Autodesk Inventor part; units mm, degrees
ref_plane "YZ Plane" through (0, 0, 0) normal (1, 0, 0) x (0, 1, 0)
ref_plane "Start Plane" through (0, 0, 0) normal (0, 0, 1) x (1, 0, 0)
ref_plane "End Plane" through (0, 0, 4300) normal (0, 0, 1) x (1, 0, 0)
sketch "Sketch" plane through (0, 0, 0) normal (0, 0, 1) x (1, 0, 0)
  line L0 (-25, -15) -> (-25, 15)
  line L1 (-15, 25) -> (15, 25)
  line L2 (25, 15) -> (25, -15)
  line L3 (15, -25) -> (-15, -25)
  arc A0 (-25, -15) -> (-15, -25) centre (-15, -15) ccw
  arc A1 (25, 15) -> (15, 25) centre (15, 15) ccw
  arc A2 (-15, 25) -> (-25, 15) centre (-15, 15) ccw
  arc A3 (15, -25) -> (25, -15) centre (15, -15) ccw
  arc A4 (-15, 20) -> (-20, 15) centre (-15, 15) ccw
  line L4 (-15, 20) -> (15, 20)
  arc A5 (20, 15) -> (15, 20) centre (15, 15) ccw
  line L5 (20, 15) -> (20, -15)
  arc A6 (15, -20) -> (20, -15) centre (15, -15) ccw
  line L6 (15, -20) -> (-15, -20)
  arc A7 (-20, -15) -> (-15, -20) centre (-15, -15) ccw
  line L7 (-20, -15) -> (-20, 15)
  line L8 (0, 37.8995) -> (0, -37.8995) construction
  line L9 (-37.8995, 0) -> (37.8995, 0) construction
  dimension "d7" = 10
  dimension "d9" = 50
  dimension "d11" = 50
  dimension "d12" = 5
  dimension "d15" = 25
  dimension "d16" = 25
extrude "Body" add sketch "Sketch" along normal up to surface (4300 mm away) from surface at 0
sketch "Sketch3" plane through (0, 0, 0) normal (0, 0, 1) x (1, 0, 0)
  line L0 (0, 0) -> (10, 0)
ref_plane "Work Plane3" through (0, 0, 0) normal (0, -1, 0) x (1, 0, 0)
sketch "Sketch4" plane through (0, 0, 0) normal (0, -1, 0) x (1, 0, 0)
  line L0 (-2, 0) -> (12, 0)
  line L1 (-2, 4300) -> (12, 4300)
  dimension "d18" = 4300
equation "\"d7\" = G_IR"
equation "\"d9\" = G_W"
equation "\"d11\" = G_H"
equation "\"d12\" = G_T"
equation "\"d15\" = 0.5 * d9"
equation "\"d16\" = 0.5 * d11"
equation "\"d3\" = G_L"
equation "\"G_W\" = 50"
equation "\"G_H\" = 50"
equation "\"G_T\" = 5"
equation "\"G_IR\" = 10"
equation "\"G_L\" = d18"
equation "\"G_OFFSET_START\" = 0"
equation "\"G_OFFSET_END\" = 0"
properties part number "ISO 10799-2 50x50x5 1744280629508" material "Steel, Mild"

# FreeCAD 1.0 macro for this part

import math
import FreeCAD as App
import Part
import Sketcher
Q = App.Units.Quantity

doc = App.newDocument("Part")
params = doc.addObject("Spreadsheet::Sheet", "Params")
for row, (alias, value) in enumerate([
    ("sketch1_radius", "10 mm"),
    ("sketch1_radius2", "5 mm"),
    ("pad1_length", "4300 mm"),
], start=1):
    params.set(f"A{row}", alias)
    params.set(f"B{row}", "=" + value)
    params.setAlias(f"B{row}", alias)

body = doc.addObject("PartDesign::Body", "Body")

# Sketch on XY plane
sketch1 = body.newObject("Sketcher::SketchObject", "Sketch")
sketch1.AttachmentSupport = (doc.getObject("XY_Plane"), [""])
sketch1.MapMode = "FlatFace"
sketch1.addGeometry([
    Part.LineSegment(App.Vector(-25, 15, 0), App.Vector(-25, -15, 0)),  # 0
    Part.ArcOfCircle(Part.Circle(App.Vector(-15, -15, 0), App.Vector(0, 0, 1), 10), math.radians(180), math.radians(270)),  # 1
    Part.LineSegment(App.Vector(-15, -25, 0), App.Vector(15, -25, 0)),  # 2
    Part.ArcOfCircle(Part.Circle(App.Vector(15, -15, 0), App.Vector(0, 0, 1), 10), math.radians(-90), math.radians(0)),  # 3
    Part.LineSegment(App.Vector(25, -15, 0), App.Vector(25, 15, 0)),  # 4
    Part.ArcOfCircle(Part.Circle(App.Vector(15, 15, 0), App.Vector(0, 0, 1), 10), math.radians(0), math.radians(90)),  # 5
    Part.LineSegment(App.Vector(15, 25, 0), App.Vector(-15, 25, 0)),  # 6
    Part.ArcOfCircle(Part.Circle(App.Vector(-15, 15, 0), App.Vector(0, 0, 1), 10), math.radians(90), math.radians(180)),  # 7
    Part.ArcOfCircle(Part.Circle(App.Vector(-15, 15, 0), App.Vector(0, 0, 1), 5), math.radians(90), math.radians(180)),  # 8
    Part.LineSegment(App.Vector(-15, 20, 0), App.Vector(15, 20, 0)),  # 9
    Part.ArcOfCircle(Part.Circle(App.Vector(15, 15, 0), App.Vector(0, 0, 1), 5), math.radians(0), math.radians(90)),  # 10
    Part.LineSegment(App.Vector(20, 15, 0), App.Vector(20, -15, 0)),  # 11
    Part.ArcOfCircle(Part.Circle(App.Vector(15, -15, 0), App.Vector(0, 0, 1), 5), math.radians(-90), math.radians(0)),  # 12
    Part.LineSegment(App.Vector(15, -20, 0), App.Vector(-15, -20, 0)),  # 13
    Part.ArcOfCircle(Part.Circle(App.Vector(-15, -15, 0), App.Vector(0, 0, 1), 5), math.radians(180), math.radians(270)),  # 14
    Part.LineSegment(App.Vector(-20, -15, 0), App.Vector(-20, 15, 0)),  # 15
], False)
sketch1.addConstraint([
    Sketcher.Constraint("Tangent", 0, 2, 1, 1),
    Sketcher.Constraint("Tangent", 1, 2, 2, 1),
    Sketcher.Constraint("Tangent", 2, 2, 3, 1),
    Sketcher.Constraint("Tangent", 3, 2, 4, 1),
    Sketcher.Constraint("Tangent", 4, 2, 5, 1),
    Sketcher.Constraint("Tangent", 5, 2, 6, 1),
    Sketcher.Constraint("Tangent", 6, 2, 7, 1),
    Sketcher.Constraint("Tangent", 7, 2, 0, 1),
    Sketcher.Constraint("Tangent", 8, 1, 9, 1),
    Sketcher.Constraint("Tangent", 9, 2, 10, 2),
    Sketcher.Constraint("Tangent", 10, 1, 11, 1),
    Sketcher.Constraint("Tangent", 11, 2, 12, 2),
    Sketcher.Constraint("Tangent", 12, 1, 13, 1),
    Sketcher.Constraint("Tangent", 13, 2, 14, 2),
    Sketcher.Constraint("Tangent", 14, 1, 15, 1),
    Sketcher.Constraint("Tangent", 15, 2, 8, 2),
    Sketcher.Constraint("Vertical", 0),
    Sketcher.Constraint("Horizontal", 2),
    Sketcher.Constraint("Vertical", 4),
    Sketcher.Constraint("Horizontal", 6),
    Sketcher.Constraint("Horizontal", 9),
    Sketcher.Constraint("Vertical", 11),
    Sketcher.Constraint("Horizontal", 13),
    Sketcher.Constraint("Vertical", 15),
    Sketcher.Constraint("Coincident", 8, 3, 7, 3),
    Sketcher.Constraint("Coincident", 10, 3, 5, 3),
    Sketcher.Constraint("Coincident", 12, 3, 3, 3),
    Sketcher.Constraint("Equal", 1, 3),
    Sketcher.Constraint("Equal", 3, 5),
    Sketcher.Constraint("Equal", 5, 7),
    Sketcher.Constraint("Equal", 12, 14),
    Sketcher.Constraint("Symmetric", 1, 3, 5, 3, -1, 1),
    Sketcher.Constraint("Equal", 13, 0),
    Sketcher.Constraint("Radius", 1, Q("10 mm")),
    Sketcher.Constraint("Radius", 8, Q("5 mm")),
    Sketcher.Constraint("DistanceX", 0, 2, -1, 1, Q("25 mm")),
])
sketch1.setExpression("Constraints[33]", "Params.sketch1_radius")
sketch1.setExpression("Constraints[34]", "Params.sketch1_radius2")
pad1 = body.newObject("PartDesign::Pad", "Pad")
pad1.Profile = sketch1
pad1.setExpression("Length", "Params.pad1_length")

doc.recompute()
